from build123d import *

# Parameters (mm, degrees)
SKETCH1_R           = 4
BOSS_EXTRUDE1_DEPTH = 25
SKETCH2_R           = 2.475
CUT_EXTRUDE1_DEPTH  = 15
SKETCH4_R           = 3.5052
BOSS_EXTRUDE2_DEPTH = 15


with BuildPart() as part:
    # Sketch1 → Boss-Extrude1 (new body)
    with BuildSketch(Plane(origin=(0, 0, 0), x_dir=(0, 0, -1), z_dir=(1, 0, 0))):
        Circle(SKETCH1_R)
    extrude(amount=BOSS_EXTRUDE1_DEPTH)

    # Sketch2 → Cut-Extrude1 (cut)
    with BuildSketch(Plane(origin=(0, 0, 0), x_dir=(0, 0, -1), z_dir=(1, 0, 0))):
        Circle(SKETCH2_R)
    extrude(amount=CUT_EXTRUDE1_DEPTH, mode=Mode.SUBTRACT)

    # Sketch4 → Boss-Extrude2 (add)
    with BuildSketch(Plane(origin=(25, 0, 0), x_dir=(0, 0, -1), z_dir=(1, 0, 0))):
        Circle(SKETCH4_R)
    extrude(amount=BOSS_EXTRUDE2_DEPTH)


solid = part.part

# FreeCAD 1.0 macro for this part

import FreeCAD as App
import Part
import Sketcher
from FreeCAD import Vector
Q = App.Units.Quantity

doc = App.newDocument("Part")
body = doc.addObject("PartDesign::Body", "Body")

sketch1 = body.newObject("Sketcher::SketchObject", "Sketch")
sketch1.AttachmentSupport = (doc.getObject("YZ_Plane"), [""])
sketch1.MapMode = "FlatFace"
sketch1.addGeometry(Part.Circle(Vector(0, 0, 0), Vector(0, 0, 1), 4), False)
sketch1.addConstraint([
    Sketcher.Constraint("Coincident", 0, 3, -1, 1),
    Sketcher.Constraint("Diameter", 0, Q("8 mm")),
])
pad1 = body.newObject("PartDesign::Pad", "Pad")
pad1.Profile = sketch1
pad1.Length = 25

sketch2 = body.newObject("Sketcher::SketchObject", "Sketch001")
sketch2.AttachmentSupport = (doc.getObject("YZ_Plane"), [""])
sketch2.MapMode = "FlatFace"
sketch2.addGeometry(Part.Circle(Vector(0, 0, 0), Vector(0, 0, 1), 2.475), False)
sketch2.addConstraint([
    Sketcher.Constraint("Coincident", 0, 3, -1, 1),
    Sketcher.Constraint("Diameter", 0, Q("4.95 mm")),
])
pocket1 = body.newObject("PartDesign::Pocket", "Pocket")
pocket1.Profile = sketch2
pocket1.Length = 15
pocket1.Reversed = True

sketch3 = body.newObject("Sketcher::SketchObject", "Sketch002")
sketch3.AttachmentSupport = (doc.getObject("YZ_Plane"), [""])
sketch3.MapMode = "FlatFace"
sketch3.AttachmentOffset = App.Placement(Vector(0, 0, 25), App.Rotation())
sketch3.addGeometry(Part.Circle(Vector(0, 0, 0), Vector(0, 0, 1), 3.5052), False)
sketch3.addConstraint([
    Sketcher.Constraint("Coincident", 0, 3, -1, 1),
    Sketcher.Constraint("Diameter", 0, Q("7.0104 mm")),
])
pad2 = body.newObject("PartDesign::Pad", "Pad001")
pad2.Profile = sketch3
pad2.Length = 15

doc.recompute()
